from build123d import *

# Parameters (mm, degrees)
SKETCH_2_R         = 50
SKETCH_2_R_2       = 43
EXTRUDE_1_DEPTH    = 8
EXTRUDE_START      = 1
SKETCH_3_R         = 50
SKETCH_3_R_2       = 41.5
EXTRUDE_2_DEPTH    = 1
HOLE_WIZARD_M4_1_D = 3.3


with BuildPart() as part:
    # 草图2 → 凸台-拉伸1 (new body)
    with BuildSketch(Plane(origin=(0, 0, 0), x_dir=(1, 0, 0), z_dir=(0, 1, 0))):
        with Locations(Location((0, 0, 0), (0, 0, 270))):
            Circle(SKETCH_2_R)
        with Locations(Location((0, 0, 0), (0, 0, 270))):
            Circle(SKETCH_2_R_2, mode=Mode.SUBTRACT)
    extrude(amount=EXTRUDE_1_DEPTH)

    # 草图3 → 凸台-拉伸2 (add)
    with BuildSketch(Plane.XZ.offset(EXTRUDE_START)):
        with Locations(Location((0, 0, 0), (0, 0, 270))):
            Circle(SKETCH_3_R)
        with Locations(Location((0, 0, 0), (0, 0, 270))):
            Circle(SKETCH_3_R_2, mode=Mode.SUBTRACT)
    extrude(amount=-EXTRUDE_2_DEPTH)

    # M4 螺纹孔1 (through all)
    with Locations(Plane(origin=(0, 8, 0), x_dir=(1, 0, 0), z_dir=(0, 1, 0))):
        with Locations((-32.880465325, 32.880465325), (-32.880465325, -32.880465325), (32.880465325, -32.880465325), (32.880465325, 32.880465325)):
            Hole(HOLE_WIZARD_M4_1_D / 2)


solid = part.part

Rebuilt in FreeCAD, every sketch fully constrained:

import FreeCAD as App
import Part
import Sketcher
Q = App.Units.Quantity

doc = App.newDocument("Part")
body = doc.addObject("PartDesign::Body", "Body")

sketch1 = body.newObject("Sketcher::SketchObject", "Sketch")
sketch1.AttachmentSupport = (doc.getObject("XZ_Plane"), [""])
sketch1.MapMode = "FlatFace"
sketch1.addGeometry(Part.Circle(App.Vector(0, 0, 0), App.Vector(0, 0, 1), 50), False)
sketch1.addGeometry(Part.Circle(App.Vector(0, 0, 0), App.Vector(0, 0, 1), 43), False)
sketch1.addConstraint(Sketcher.Constraint("Coincident", 0, 3, -1, 1))
sketch1.addConstraint(Sketcher.Constraint("Coincident", 1, 3, -1, 1))
sketch1.addConstraint(Sketcher.Constraint("Diameter", 0, Q("100 mm")))
sketch1.addConstraint(Sketcher.Constraint("Diameter", 1, Q("86 mm")))
pad1 = body.newObject("PartDesign::Pad", "Pad")
pad1.Profile = sketch1
pad1.Length = 8
pad1.Reversed = True

sketch2 = body.newObject("Sketcher::SketchObject", "Sketch001")
sketch2.AttachmentSupport = (doc.getObject("XZ_Plane"), [""])
sketch2.MapMode = "FlatFace"
sketch2.AttachmentOffset = App.Placement(App.Vector(0, 0, 1), App.Rotation())
sketch2.addGeometry(Part.Circle(App.Vector(0, 0, 0), App.Vector(0, 0, 1), 50), False)
sketch2.addGeometry(Part.Circle(App.Vector(0, 0, 0), App.Vector(0, 0, 1), 42), False)
sketch2.addConstraint(Sketcher.Constraint("Coincident", 0, 3, -1, 1))
sketch2.addConstraint(Sketcher.Constraint("Coincident", 1, 3, -1, 1))
sketch2.addConstraint(Sketcher.Constraint("Diameter", 0, Q("100 mm")))
sketch2.addConstraint(Sketcher.Constraint("Diameter", 1, Q("83 mm")))
pad2 = body.newObject("PartDesign::Pad", "Pad001")
pad2.Profile = sketch2
pad2.Length = 1
pad2.Reversed = True

sketch3 = body.newObject("Sketcher::SketchObject", "Sketch002")
sketch3.AttachmentSupport = (doc.getObject("XZ_Plane"), [""])
sketch3.MapMode = "FlatFace"
sketch3.AttachmentOffset = App.Placement(App.Vector(0, 0, -8), App.Rotation())
sketch3.addGeometry(Part.Circle(App.Vector(-32.9, -32.9, 0), App.Vector(0, 0, 1), 1.6), False)
sketch3.addGeometry(Part.Circle(App.Vector(-32.9, 32.9, 0), App.Vector(0, 0, 1), 1.6), False)
sketch3.addGeometry(Part.Circle(App.Vector(32.9, 32.9, 0), App.Vector(0, 0, 1), 1.6), False)
sketch3.addGeometry(Part.Circle(App.Vector(32.9, -32.9, 0), App.Vector(0, 0, 1), 1.6), False)
sketch3.addConstraint(Sketcher.Constraint("Equal", 0, 1))
sketch3.addConstraint(Sketcher.Constraint("Equal", 1, 2))
sketch3.addConstraint(Sketcher.Constraint("Equal", 2, 3))
sketch3.addConstraint(Sketcher.Constraint("Symmetric", 0, 3, 2, 3, -1, 1))
sketch3.addConstraint(Sketcher.Constraint("Symmetric", 1, 3, 3, 3, -1, 1))
sketch3.addConstraint(Sketcher.Constraint("Symmetric", 1, 3, 2, 3, -2))
sketch3.addConstraint(Sketcher.Constraint("Diameter", 0, Q("3.3 mm")))
sketch3.addConstraint(Sketcher.Constraint("DistanceY", 0, 3, 1, 3, Q("65.760931 mm")))
sketch3.addConstraint(Sketcher.Constraint("DistanceX", 1, 3, 2, 3, Q("65.760931 mm")))
doc.recompute()
hole = body.newObject("PartDesign::Hole", "Hole")
hole.Profile = sketch3
hole.ThreadType = "None"
hole.Diameter = 3.3
hole.DepthType = "ThroughAll"
hole.Reversed = True

doc.recompute()
